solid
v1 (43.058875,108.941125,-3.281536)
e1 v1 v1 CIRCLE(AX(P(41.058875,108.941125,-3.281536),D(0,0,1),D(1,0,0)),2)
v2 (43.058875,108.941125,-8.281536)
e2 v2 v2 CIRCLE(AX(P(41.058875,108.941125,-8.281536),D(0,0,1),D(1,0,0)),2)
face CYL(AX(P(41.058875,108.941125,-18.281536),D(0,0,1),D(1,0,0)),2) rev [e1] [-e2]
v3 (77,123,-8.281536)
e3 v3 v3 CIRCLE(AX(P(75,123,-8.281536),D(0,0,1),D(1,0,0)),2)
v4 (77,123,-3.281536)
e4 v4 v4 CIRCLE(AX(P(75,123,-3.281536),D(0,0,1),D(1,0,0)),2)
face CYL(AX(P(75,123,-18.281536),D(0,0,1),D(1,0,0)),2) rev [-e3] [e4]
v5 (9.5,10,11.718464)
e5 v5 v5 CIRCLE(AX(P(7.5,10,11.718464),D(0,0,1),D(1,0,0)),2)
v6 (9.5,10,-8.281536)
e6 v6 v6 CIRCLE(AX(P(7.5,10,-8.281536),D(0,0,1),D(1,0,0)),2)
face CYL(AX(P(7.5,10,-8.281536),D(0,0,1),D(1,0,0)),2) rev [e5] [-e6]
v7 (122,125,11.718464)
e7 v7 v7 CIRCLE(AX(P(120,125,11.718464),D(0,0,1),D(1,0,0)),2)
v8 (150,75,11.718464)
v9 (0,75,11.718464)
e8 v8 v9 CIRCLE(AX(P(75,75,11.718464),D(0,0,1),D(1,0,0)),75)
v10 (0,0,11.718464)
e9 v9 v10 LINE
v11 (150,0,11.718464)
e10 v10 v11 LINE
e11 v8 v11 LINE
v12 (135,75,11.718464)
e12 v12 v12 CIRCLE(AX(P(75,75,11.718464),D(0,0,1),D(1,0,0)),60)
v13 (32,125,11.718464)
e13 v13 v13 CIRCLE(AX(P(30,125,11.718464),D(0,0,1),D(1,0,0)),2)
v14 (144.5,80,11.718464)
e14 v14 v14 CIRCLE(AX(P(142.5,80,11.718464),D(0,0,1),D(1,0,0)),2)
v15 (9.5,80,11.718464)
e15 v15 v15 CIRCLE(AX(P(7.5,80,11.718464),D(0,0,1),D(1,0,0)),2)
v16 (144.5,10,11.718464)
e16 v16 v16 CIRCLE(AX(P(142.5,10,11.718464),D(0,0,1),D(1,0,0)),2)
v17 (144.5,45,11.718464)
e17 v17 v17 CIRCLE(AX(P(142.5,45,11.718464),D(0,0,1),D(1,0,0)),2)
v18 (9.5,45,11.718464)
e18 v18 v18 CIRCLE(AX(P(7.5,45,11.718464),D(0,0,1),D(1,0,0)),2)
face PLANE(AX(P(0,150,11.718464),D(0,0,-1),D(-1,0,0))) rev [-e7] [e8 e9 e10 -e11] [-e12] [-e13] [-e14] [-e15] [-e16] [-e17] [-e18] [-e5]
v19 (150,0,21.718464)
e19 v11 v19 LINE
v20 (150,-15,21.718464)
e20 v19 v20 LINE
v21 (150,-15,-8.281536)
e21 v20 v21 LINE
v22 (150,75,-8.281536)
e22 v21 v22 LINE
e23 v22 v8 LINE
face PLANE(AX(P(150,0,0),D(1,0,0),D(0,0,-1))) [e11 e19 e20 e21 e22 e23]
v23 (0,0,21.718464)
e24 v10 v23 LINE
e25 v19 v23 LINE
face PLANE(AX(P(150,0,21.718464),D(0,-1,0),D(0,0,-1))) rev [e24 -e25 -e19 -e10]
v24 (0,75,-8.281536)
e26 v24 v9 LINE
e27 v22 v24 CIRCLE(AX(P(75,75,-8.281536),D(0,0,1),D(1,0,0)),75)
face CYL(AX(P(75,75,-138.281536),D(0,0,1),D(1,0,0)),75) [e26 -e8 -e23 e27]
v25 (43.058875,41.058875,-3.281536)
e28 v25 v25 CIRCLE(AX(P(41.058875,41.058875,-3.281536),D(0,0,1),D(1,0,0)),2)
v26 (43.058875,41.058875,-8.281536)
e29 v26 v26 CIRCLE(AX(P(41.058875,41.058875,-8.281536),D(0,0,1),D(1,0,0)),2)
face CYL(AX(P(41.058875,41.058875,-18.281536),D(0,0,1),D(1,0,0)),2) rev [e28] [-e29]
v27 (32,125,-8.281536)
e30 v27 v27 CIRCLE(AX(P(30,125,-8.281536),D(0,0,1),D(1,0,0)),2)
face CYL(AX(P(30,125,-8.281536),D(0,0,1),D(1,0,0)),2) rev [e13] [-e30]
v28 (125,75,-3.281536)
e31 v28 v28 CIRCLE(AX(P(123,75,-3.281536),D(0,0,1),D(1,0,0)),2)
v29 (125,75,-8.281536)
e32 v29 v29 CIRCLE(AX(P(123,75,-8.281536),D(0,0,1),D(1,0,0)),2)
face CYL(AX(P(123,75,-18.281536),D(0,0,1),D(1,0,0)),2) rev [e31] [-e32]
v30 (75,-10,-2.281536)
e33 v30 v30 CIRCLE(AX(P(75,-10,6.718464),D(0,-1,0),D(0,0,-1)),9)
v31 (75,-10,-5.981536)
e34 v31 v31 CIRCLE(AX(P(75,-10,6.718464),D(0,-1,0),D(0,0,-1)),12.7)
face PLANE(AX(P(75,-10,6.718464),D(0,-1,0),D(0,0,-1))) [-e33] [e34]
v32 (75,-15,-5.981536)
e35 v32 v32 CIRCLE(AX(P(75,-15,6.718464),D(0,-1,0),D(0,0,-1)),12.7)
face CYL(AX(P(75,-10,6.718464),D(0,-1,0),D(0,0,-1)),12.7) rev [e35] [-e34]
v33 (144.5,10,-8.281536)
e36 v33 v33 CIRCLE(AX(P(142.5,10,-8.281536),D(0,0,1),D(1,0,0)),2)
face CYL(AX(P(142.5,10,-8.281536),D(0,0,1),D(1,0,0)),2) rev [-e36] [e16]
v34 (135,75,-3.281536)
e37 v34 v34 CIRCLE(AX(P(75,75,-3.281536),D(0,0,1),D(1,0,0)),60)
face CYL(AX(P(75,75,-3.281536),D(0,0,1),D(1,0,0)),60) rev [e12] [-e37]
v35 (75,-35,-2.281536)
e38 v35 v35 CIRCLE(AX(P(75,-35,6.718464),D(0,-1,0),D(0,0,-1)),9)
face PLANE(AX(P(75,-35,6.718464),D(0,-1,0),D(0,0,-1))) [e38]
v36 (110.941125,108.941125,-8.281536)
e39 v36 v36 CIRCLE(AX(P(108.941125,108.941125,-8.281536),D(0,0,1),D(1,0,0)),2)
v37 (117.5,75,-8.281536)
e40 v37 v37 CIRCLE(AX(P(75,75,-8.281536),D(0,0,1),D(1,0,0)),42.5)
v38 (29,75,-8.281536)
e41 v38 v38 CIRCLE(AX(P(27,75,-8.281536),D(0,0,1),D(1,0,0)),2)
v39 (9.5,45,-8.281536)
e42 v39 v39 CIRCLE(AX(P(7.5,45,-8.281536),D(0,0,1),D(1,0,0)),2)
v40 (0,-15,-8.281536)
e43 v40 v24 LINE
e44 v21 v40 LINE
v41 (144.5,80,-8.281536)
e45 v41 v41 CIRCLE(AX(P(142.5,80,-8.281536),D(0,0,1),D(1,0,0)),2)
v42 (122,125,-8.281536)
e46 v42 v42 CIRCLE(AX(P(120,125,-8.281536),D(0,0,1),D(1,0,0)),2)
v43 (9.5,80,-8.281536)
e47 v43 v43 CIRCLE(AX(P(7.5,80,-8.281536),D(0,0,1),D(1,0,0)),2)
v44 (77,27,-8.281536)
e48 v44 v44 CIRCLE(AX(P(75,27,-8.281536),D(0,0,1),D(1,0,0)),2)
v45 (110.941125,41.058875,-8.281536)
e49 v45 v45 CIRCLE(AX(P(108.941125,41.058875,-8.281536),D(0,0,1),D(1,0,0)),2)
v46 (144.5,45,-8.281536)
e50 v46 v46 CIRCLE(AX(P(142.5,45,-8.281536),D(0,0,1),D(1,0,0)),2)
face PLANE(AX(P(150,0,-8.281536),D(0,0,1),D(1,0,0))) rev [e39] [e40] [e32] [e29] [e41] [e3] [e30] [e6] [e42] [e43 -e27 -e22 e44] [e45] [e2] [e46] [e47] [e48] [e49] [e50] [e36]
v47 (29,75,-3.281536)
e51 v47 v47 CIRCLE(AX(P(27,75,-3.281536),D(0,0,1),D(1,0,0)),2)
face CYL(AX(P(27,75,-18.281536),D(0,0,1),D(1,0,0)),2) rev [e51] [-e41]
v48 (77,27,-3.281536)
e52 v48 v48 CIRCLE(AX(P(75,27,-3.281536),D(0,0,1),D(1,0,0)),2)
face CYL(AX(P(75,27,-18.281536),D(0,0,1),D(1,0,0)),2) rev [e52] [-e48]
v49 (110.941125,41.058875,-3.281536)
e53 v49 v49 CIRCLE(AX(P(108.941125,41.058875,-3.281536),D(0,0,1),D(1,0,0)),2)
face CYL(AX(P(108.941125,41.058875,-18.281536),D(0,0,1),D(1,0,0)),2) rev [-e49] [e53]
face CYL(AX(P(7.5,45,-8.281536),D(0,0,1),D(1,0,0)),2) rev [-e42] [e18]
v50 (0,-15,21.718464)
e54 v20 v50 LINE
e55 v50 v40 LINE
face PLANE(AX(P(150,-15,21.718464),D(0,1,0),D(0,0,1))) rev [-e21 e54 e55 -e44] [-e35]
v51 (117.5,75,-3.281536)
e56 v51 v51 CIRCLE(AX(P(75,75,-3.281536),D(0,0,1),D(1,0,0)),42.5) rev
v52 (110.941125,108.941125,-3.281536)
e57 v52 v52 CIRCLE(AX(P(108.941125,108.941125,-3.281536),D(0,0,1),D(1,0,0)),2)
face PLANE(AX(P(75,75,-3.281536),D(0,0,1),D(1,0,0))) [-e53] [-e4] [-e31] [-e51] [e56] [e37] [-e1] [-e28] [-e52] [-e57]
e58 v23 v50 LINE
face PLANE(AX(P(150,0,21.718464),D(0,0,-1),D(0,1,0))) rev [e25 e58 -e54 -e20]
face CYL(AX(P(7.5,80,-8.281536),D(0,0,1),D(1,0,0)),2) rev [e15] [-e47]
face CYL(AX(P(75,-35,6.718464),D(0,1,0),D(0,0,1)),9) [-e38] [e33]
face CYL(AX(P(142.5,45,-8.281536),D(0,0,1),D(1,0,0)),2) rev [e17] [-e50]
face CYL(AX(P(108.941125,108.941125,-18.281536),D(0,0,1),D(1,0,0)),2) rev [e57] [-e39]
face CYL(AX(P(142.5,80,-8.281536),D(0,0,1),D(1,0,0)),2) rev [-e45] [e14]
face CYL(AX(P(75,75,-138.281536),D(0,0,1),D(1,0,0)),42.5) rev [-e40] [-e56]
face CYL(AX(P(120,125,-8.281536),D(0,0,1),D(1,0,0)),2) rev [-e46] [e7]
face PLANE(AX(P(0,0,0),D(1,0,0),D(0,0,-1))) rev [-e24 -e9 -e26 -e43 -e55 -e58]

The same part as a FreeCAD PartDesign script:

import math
import FreeCAD as App
import Part
import Sketcher

V = App.Vector

doc = App.newDocument("Part")
body = doc.addObject("PartDesign::Body", "Body")

# Sketch on YZ plane
sketch1 = body.newObject("Sketcher::SketchObject", "Sketch")
sketch1.AttachmentSupport = (doc.getObject("YZ_Plane"), [""])
sketch1.MapMode = "FlatFace"
sketch1.addGeometry([
    Part.LineSegment(V(0, 22, 0), V(-15, 22, 0)),
    Part.LineSegment(V(-15, 22, 0), V(-15, -8, 0)),
    Part.LineSegment(V(-15, -8, 0), V(0, -8, 0)),
    Part.LineSegment(V(0, -8, 0), V(0, 22, 0)),
], False)
sketch1.addConstraint([
    Sketcher.Constraint("Coincident", 0, 2, 1, 1),
    Sketcher.Constraint("Coincident", 1, 2, 2, 1),
    Sketcher.Constraint("Coincident", 2, 2, 3, 1),
    Sketcher.Constraint("Coincident", 3, 2, 0, 1),
    Sketcher.Constraint("Horizontal", 0),
    Sketcher.Constraint("Vertical", 1),
    Sketcher.Constraint("Horizontal", 2),
    Sketcher.Constraint("Vertical", 3),
    Sketcher.Constraint("PointOnObject", 2, 2, -2),
    Sketcher.Constraint("DistanceX", 0, 2, 0, 1, 15.0),
    Sketcher.Constraint("DistanceY", 1, 2, 1, 1, 30.0),
    Sketcher.Constraint("DistanceY", -1, 1, 0, 2, 21.718464),
])
pad1 = body.newObject("PartDesign::Pad", "Pad")
pad1.Profile = sketch1
pad1.Length = 150

# Sketch on XZ plane
sketch2 = body.newObject("Sketcher::SketchObject", "Sketch001")
sketch2.AttachmentSupport = (doc.getObject("XZ_Plane"), [""])
sketch2.MapMode = "FlatFace"
sketch2.AttachmentOffset = App.Placement(V(0, 0, 15), App.Rotation())
sketch2.addGeometry(Part.Circle(V(75, 7, 0), V(0, 0, 1), 13), False)
sketch2.addConstraint([
    Sketcher.Constraint("Diameter", 0, 25.4),
    Sketcher.Constraint("DistanceX", -1, 1, 0, 3, 75.0),
    Sketcher.Constraint("DistanceY", -1, 1, 0, 3, 6.718464),
])
pocket1 = body.newObject("PartDesign::Pocket", "Pocket")
pocket1.Profile = sketch2
pocket1.Length = 5

# Sketch on XZ plane
sketch3 = body.newObject("Sketcher::SketchObject", "Sketch002")
sketch3.AttachmentSupport = (doc.getObject("XZ_Plane"), [""])
sketch3.MapMode = "FlatFace"
sketch3.AttachmentOffset = App.Placement(V(0, 0, 10), App.Rotation())
sketch3.addGeometry(Part.Circle(V(75, 7, 0), V(0, 0, 1), 9), False)
sketch3.addConstraint([
    Sketcher.Constraint("Diameter", 0, 18.0),
    Sketcher.Constraint("DistanceX", -1, 1, 0, 3, 75.0),
    Sketcher.Constraint("DistanceY", -1, 1, 0, 3, 6.718464),
])
pad2 = body.newObject("PartDesign::Pad", "Pad001")
pad2.Profile = sketch3
pad2.Length = 25

# Sketch on XZ plane
sketch4 = body.newObject("Sketcher::SketchObject", "Sketch003")
sketch4.AttachmentSupport = (doc.getObject("XZ_Plane"), [""])
sketch4.MapMode = "FlatFace"
sketch4.addGeometry([
    Part.LineSegment(V(0, -8, 0), V(0, 12, 0)),
    Part.LineSegment(V(0, 12, 0), V(150, 12, 0)),
    Part.LineSegment(V(150, 12, 0), V(150, -8, 0)),
    Part.LineSegment(V(150, -8, 0), V(0, -8, 0)),
], False)
sketch4.addConstraint([
    Sketcher.Constraint("Coincident", 0, 2, 1, 1),
    Sketcher.Constraint("Coincident", 1, 2, 2, 1),
    Sketcher.Constraint("Coincident", 2, 2, 3, 1),
    Sketcher.Constraint("Coincident", 3, 2, 0, 1),
    Sketcher.Constraint("Vertical", 0),
    Sketcher.Constraint("Horizontal", 1),
    Sketcher.Constraint("Vertical", 2),
    Sketcher.Constraint("Horizontal", 3),
    Sketcher.Constraint("PointOnObject", 0, 2, -2),
    Sketcher.Constraint("DistanceX", 1, 1, 1, 2, 150.0),
    Sketcher.Constraint("DistanceY", 0, 1, 0, 2, 20.0),
    Sketcher.Constraint("DistanceY", -1, 1, 0, 2, 11.718464),
])
pad3 = body.newObject("PartDesign::Pad", "Pad002")
pad3.Profile = sketch4
pad3.Length = 150
pad3.Reversed = True

# Sketch on XY plane
sketch5 = body.newObject("Sketcher::SketchObject", "Sketch004")
sketch5.AttachmentSupport = (doc.getObject("XY_Plane"), [""])
sketch5.MapMode = "FlatFace"
sketch5.AttachmentOffset = App.Placement(V(0, 0, 11.718464), App.Rotation())
sketch5.addGeometry([
    Part.LineSegment(V(75, 150, 0), V(0, 150, 0)),  # 0
    Part.LineSegment(V(0, 150, 0), V(0, 75, 0)),  # 1
    Part.ArcOfCircle(Part.Circle(V(75, 75, 0), V(0, 0, 1), 75), math.radians(90), math.radians(180)),  # 2
    Part.LineSegment(V(150, 150, 0), V(75, 150, 0)),  # 3
    Part.ArcOfCircle(Part.Circle(V(75, 75, 0), V(0, 0, 1), 75), math.radians(0), math.radians(90)),  # 4
    Part.LineSegment(V(150, 75, 0), V(150, 150, 0)),  # 5
    Part.Circle(V(75, 75, 0), V(0, 0, 1), 42),  # 6
], False)
sketch5.addConstraint([
    Sketcher.Constraint("Coincident", 0, 2, 1, 1),
    Sketcher.Constraint("Tangent", 1, 2, 2, 2),
    Sketcher.Constraint("Tangent", 2, 1, 0, 1),
    Sketcher.Constraint("Tangent", 3, 2, 4, 2),
    Sketcher.Constraint("Tangent", 4, 1, 5, 1),
    Sketcher.Constraint("Coincident", 5, 2, 3, 1),
    Sketcher.Constraint("Horizontal", 0),
    Sketcher.Constraint("Vertical", 1),
    Sketcher.Constraint("Horizontal", 3),
    Sketcher.Constraint("Vertical", 5),
    Sketcher.Constraint("Coincident", 4, 3, 2, 3),
    Sketcher.Constraint("Coincident", 6, 3, 2, 3),
    Sketcher.Constraint("Equal", 2, 4),
    Sketcher.Constraint("PointOnObject", 0, 2, -2),
    Sketcher.Constraint("Diameter", 6, 85.0),
    Sketcher.Constraint("Radius", 2, 75.0),
    Sketcher.Constraint("DistanceY", -1, 1, 2, 3, 75.0),
])
pocket2 = body.newObject("PartDesign::Pocket", "Pocket001")
pocket2.Profile = sketch5
pocket2.Length = 150

# Sketch on XY plane
sketch6 = body.newObject("Sketcher::SketchObject", "Sketch005")
sketch6.AttachmentSupport = (doc.getObject("XY_Plane"), [""])
sketch6.MapMode = "FlatFace"
sketch6.AttachmentOffset = App.Placement(V(0, 0, 11.718464), App.Rotation())
sketch6.addGeometry(Part.Circle(V(75, 75, 0), V(0, 0, 1), 60), False)
sketch6.addConstraint([
    Sketcher.Constraint("Diameter", 0, 120.0),
    Sketcher.Constraint("DistanceX", -1, 1, 0, 3, 75.0),
    Sketcher.Constraint("DistanceY", -1, 1, 0, 3, 75.0),
])
pocket3 = body.newObject("PartDesign::Pocket", "Pocket002")
pocket3.Profile = sketch6
pocket3.Length = 15

# Sketch on XY plane
sketch7 = body.newObject("Sketcher::SketchObject", "Sketch006")
sketch7.AttachmentSupport = (doc.getObject("XY_Plane"), [""])
sketch7.MapMode = "FlatFace"
sketch7.AttachmentOffset = App.Placement(V(0, 0, -3.281536), App.Rotation())
sketch7.addGeometry([
    Part.Circle(V(75, 123, 0), V(0, 0, 1), 2),  # 0
    Part.Circle(V(108.9, 108.9, 0), V(0, 0, 1), 2),  # 1
    Part.Circle(V(123, 75, 0), V(0, 0, 1), 2),  # 2
    Part.Circle(V(108.9, 41.1, 0), V(0, 0, 1), 2),  # 3
    Part.Circle(V(75, 27, 0), V(0, 0, 1), 2),  # 4
    Part.Circle(V(41.1, 41.1, 0), V(0, 0, 1), 2),  # 5
    Part.Circle(V(27, 75, 0), V(0, 0, 1), 2),  # 6
    Part.Circle(V(41.1, 108.9, 0), V(0, 0, 1), 2),  # 7
], False)
sketch7.addConstraint([
    Sketcher.Constraint("Equal", 0, 1),
    Sketcher.Constraint("Equal", 1, 2),
    Sketcher.Constraint("Equal", 2, 3),
    Sketcher.Constraint("Equal", 3, 4),
    Sketcher.Constraint("Equal", 4, 5),
    Sketcher.Constraint("Equal", 5, 6),
    Sketcher.Constraint("Equal", 6, 7),
    Sketcher.Constraint("Horizontal", 3, 3, 5, 3),
    Sketcher.Constraint("Horizontal", 2, 3, 6, 3),
    Sketcher.Constraint("Horizontal", 1, 3, 7, 3),
    Sketcher.Constraint("Vertical", 1, 3, 3, 3),
    Sketcher.Constraint("Vertical", 0, 3, 4, 3),
    Sketcher.Constraint("Vertical", 5, 3, 7, 3),
    Sketcher.Constraint("Diameter", 0, 4.0),
    Sketcher.Constraint("DistanceX", -1, 1, 0, 3, 75.0),
    Sketcher.Constraint("DistanceY", -1, 1, 0, 3, 123.0),
    Sketcher.Constraint("DistanceX", -1, 1, 2, 3, 123.0),
    Sketcher.Constraint("DistanceY", -1, 1, 2, 3, 75.0),
    Sketcher.Constraint("DistanceY", -1, 1, 4, 3, 27.0),
    Sketcher.Constraint("DistanceX", -1, 1, 6, 3, 27.0),
    Sketcher.Constraint("DistanceY", 3, 3, 1, 3, 67.882251),
    Sketcher.Constraint("DistanceX", 5, 3, 3, 3, 67.882251),
    Sketcher.Constraint("DistanceX", -1, 1, 1, 3, 108.941125),
    Sketcher.Constraint("DistanceY", -1, 1, 1, 3, 108.941125),
])
pocket4 = body.newObject("PartDesign::Pocket", "Pocket003")
pocket4.Profile = sketch7
pocket4.Length = 15

# Sketch on XY plane
sketch8 = body.newObject("Sketcher::SketchObject", "Sketch007")
sketch8.AttachmentSupport = (doc.getObject("XY_Plane"), [""])
sketch8.MapMode = "FlatFace"
sketch8.AttachmentOffset = App.Placement(V(0, 0, 11.718464), App.Rotation())
sketch8.addGeometry([
    Part.Circle(V(7.5, 10, 0), V(0, 0, 1), 2),  # 0
    Part.Circle(V(142.5, 10, 0), V(0, 0, 1), 2),  # 1
    Part.Circle(V(142.5, 45, 0), V(0, 0, 1), 2),  # 2
    Part.Circle(V(142.5, 80, 0), V(0, 0, 1), 2),  # 3
    Part.Circle(V(7.5, 45, 0), V(0, 0, 1), 2),  # 4
    Part.Circle(V(7.5, 80, 0), V(0, 0, 1), 2),  # 5
], False)
sketch8.addConstraint([
    Sketcher.Constraint("Equal", 0, 1),
    Sketcher.Constraint("Equal", 1, 2),
    Sketcher.Constraint("Equal", 2, 3),
    Sketcher.Constraint("Equal", 3, 4),
    Sketcher.Constraint("Equal", 4, 5),
    Sketcher.Constraint("Horizontal", 0, 3, 1, 3),
    Sketcher.Constraint("Horizontal", 2, 3, 4, 3),
    Sketcher.Constraint("Horizontal", 3, 3, 5, 3),
    Sketcher.Constraint("Vertical", 1, 3, 2, 3),
    Sketcher.Constraint("Vertical", 2, 3, 3, 3),
    Sketcher.Constraint("Vertical", 0, 3, 4, 3),
    Sketcher.Constraint("Vertical", 4, 3, 5, 3),
    Sketcher.Constraint("Diameter", 0, 4.0),
    Sketcher.Constraint("DistanceY", -1, 1, 0, 3, 10.0),
    Sketcher.Constraint("DistanceY", -1, 1, 2, 3, 45.0),
    Sketcher.Constraint("DistanceY", -1, 1, 3, 3, 80.0),
    Sketcher.Constraint("DistanceX", 0, 3, 1, 3, 135.0),
    Sketcher.Constraint("DistanceX", -1, 1, 0, 3, 7.5),
])
pocket5 = body.newObject("PartDesign::Pocket", "Pocket004")
pocket5.Profile = sketch8
pocket5.Length = 20

# Sketch on XY plane
sketch9 = body.newObject("Sketcher::SketchObject", "Sketch008")
sketch9.AttachmentSupport = (doc.getObject("XY_Plane"), [""])
sketch9.MapMode = "FlatFace"
sketch9.AttachmentOffset = App.Placement(V(0, 0, 11.718464), App.Rotation())
sketch9.addGeometry([
    Part.Circle(V(30, 125, 0), V(0, 0, 1), 2),
    Part.Circle(V(120, 125, 0), V(0, 0, 1), 2),
], False)
sketch9.addConstraint([
    Sketcher.Constraint("Equal", 0, 1),
    Sketcher.Constraint("Horizontal", 0, 3, 1, 3),
    Sketcher.Constraint("Diameter", 0, 4.0),
    Sketcher.Constraint("DistanceX", -1, 1, 0, 3, 30.0),
    Sketcher.Constraint("DistanceY", -1, 1, 0, 3, 125.0),
    Sketcher.Constraint("DistanceX", -1, 1, 1, 3, 120.0),
])
pocket6 = body.newObject("PartDesign::Pocket", "Pocket005")
pocket6.Profile = sketch9
pocket6.Length = 20

doc.recompute()
